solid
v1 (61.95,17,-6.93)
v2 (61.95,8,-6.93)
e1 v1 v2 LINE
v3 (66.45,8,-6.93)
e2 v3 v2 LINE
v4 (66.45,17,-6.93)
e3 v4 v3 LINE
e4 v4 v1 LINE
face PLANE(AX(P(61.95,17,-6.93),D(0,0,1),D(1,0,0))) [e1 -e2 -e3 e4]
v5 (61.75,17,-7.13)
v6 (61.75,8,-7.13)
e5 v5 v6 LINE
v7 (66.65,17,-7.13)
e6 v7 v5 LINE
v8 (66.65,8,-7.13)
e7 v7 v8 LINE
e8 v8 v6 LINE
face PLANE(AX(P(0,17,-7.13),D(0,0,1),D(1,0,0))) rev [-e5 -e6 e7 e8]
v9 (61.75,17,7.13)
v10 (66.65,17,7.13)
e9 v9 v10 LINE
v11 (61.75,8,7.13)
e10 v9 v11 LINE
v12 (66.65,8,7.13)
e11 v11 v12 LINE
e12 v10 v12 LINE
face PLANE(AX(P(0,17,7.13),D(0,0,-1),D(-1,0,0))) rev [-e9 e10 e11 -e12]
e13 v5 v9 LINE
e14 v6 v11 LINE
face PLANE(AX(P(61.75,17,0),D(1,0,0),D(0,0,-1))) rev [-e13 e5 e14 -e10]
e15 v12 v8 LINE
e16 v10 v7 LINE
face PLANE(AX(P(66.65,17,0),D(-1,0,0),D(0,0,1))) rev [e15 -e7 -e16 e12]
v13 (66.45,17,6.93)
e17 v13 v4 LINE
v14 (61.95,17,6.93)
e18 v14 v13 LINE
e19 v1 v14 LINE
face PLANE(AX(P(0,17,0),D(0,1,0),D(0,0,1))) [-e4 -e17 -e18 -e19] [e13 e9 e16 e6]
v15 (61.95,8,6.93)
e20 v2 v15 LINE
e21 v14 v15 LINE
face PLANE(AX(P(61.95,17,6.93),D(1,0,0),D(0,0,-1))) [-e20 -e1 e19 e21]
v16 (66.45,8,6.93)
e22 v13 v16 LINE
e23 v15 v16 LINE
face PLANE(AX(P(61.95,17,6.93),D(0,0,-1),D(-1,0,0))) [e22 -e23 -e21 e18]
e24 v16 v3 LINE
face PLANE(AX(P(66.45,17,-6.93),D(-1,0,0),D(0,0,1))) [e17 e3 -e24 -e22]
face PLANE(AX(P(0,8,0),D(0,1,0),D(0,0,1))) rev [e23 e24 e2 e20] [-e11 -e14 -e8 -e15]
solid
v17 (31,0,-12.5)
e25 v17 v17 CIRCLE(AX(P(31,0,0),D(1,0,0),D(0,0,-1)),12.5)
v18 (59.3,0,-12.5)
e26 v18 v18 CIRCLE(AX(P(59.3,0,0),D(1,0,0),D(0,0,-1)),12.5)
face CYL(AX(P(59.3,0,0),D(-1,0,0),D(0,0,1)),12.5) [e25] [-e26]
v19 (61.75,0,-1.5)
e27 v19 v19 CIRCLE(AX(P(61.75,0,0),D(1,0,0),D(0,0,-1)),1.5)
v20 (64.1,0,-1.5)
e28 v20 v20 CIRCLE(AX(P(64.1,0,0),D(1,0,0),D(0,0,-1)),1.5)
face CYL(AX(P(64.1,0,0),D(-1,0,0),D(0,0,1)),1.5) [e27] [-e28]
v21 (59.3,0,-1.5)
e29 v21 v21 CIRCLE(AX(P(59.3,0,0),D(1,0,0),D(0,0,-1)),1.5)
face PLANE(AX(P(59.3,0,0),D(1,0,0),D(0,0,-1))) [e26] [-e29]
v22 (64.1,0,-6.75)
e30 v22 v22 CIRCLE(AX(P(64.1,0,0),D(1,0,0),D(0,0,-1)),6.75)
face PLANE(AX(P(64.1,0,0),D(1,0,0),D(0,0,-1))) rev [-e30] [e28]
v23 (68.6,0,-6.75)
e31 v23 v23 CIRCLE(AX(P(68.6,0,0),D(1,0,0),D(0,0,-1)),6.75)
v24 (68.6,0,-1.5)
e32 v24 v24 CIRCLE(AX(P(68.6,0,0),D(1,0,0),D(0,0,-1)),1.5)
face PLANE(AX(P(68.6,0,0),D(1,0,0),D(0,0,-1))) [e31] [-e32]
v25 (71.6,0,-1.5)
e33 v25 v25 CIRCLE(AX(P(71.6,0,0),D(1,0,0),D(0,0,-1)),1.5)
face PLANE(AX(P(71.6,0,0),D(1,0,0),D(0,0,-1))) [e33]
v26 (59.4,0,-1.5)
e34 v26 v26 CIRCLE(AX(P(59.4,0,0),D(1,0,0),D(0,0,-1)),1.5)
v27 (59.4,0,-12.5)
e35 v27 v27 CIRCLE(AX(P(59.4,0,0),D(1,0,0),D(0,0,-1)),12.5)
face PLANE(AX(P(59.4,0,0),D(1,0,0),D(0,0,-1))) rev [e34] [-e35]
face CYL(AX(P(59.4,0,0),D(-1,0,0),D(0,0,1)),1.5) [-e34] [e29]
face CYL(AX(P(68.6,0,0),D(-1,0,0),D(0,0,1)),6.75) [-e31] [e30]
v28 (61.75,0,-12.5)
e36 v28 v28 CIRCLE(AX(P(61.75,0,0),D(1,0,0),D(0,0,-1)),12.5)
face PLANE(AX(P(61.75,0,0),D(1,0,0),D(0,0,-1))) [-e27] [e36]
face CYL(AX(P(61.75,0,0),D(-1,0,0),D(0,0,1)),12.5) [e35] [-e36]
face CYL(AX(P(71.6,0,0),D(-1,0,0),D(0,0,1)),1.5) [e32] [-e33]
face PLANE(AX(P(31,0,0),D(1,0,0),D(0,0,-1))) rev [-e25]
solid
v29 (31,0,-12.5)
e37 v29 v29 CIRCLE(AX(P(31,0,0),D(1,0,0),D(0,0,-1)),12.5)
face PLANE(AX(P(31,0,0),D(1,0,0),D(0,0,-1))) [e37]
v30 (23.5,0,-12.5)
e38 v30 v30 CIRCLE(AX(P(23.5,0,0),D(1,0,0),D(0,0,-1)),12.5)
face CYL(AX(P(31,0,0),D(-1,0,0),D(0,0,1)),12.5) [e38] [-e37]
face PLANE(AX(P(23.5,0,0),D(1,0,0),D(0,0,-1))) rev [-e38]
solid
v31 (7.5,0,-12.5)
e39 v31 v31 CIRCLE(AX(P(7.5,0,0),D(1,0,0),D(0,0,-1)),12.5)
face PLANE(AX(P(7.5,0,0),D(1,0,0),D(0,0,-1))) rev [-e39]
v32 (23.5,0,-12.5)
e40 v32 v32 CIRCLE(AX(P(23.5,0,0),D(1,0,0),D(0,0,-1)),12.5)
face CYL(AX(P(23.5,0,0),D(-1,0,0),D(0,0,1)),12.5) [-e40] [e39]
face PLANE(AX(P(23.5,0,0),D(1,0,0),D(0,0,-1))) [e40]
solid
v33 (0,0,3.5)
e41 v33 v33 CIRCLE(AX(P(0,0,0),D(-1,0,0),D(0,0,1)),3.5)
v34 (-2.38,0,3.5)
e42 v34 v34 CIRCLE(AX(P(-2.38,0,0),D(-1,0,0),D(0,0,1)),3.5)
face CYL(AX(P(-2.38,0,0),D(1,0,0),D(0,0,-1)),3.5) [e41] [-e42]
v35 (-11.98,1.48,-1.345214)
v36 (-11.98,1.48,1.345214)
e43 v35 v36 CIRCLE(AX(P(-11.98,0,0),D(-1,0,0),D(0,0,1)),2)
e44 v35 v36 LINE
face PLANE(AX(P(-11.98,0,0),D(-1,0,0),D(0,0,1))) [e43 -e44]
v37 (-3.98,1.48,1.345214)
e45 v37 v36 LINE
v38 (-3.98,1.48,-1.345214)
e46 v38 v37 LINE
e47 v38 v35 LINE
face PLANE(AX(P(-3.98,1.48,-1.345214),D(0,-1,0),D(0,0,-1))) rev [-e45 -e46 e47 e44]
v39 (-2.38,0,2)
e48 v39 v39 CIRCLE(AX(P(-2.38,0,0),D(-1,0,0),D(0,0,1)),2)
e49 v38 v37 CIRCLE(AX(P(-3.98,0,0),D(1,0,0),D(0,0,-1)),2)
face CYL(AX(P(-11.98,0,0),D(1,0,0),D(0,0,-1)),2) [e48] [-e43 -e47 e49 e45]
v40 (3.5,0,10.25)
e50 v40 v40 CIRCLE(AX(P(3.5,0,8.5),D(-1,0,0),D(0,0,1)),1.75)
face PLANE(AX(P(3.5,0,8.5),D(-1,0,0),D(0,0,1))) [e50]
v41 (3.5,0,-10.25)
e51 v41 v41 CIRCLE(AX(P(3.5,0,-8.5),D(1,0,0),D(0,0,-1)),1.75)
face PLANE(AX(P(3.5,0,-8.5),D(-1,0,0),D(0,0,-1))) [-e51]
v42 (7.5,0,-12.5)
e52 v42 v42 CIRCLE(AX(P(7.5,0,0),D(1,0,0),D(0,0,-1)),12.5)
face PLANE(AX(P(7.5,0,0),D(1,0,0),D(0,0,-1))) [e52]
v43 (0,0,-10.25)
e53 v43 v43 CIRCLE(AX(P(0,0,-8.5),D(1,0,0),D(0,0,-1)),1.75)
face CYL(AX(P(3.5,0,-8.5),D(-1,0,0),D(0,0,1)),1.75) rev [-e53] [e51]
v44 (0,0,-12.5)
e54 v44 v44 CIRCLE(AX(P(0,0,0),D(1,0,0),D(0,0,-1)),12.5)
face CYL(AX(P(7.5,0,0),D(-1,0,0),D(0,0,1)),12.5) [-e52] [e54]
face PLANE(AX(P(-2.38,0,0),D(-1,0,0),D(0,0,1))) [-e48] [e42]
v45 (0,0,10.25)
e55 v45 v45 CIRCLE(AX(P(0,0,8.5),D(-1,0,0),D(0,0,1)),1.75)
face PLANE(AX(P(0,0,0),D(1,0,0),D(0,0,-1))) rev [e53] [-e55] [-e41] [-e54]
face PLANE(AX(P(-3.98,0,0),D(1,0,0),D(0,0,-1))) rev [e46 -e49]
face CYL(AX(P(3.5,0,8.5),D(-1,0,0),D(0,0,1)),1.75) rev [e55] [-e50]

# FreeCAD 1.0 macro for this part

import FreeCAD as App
import Part
import Sketcher
from FreeCAD import Vector


def add_polygon(sketch, points):
    """Adds a closed chain of lines whose ends are joined by coincident constraints."""
    first, n = sketch.GeometryCount, len(points)
    for a, b in zip(points, points[1:] + points[:1]):
        sketch.addGeometry(Part.LineSegment(App.Vector(*a, 0), App.Vector(*b, 0)), False)
    for i in range(n):
        sketch.addConstraint(Sketcher.Constraint("Coincident", first + i, 2, first + (i + 1) % n, 1))

doc = App.newDocument("Part")
body = doc.addObject("PartDesign::Body", "Body")

# Sketch on YZ plane
sketch1 = body.newObject("Sketcher::SketchObject", "Sketch")
sketch1.AttachmentSupport = (doc.getObject("YZ_Plane"), [""])
sketch1.MapMode = "FlatFace"
sketch1.addGeometry(Part.Circle(Vector(0, 0, 0), Vector(0, 0, 1), 12), False)
sketch1.addConstraint([
    Sketcher.Constraint("Coincident", 0, 3, -1, 1),
    Sketcher.Constraint("Diameter", 0, 25.0),
])
pad1 = body.newObject("PartDesign::Pad", "Pad")
pad1.Profile = sketch1
pad1.Length = 7.5

# Sketch on YZ plane
sketch2 = body.newObject("Sketcher::SketchObject", "Sketch001")
sketch2.AttachmentSupport = (doc.getObject("YZ_Plane"), [""])
sketch2.MapMode = "FlatFace"
sketch2.addGeometry(Part.Circle(Vector(0, 0, 0), Vector(0, 0, 1), 3.5), False)
sketch2.addConstraint([
    Sketcher.Constraint("Coincident", 0, 3, -1, 1),
    Sketcher.Constraint("Diameter", 0, 7.0),
])
pad2 = body.newObject("PartDesign::Pad", "Pad001")
pad2.Profile = sketch2
pad2.Length = 2.38
pad2.Reversed = True

# Sketch on YZ plane
sketch3 = body.newObject("Sketcher::SketchObject", "Sketch002")
sketch3.AttachmentSupport = (doc.getObject("YZ_Plane"), [""])
sketch3.MapMode = "FlatFace"
sketch3.AttachmentOffset = App.Placement(Vector(0, 0, -2.38), App.Rotation())
sketch3.addGeometry(Part.Circle(Vector(0, 0, 0), Vector(0, 0, 1), 2), False)
sketch3.addConstraint([
    Sketcher.Constraint("Coincident", 0, 3, -1, 1),
    Sketcher.Constraint("Diameter", 0, 4.0),
])
pad3 = body.newObject("PartDesign::Pad", "Pad002")
pad3.Profile = sketch3
pad3.Length = 9.6
pad3.Reversed = True

# Sketch on YZ plane
sketch4 = body.newObject("Sketcher::SketchObject", "Sketch003")
sketch4.AttachmentSupport = (doc.getObject("YZ_Plane"), [""])
sketch4.MapMode = "FlatFace"
sketch4.AttachmentOffset = App.Placement(Vector(0, 0, -11.98), App.Rotation())
add_polygon(sketch4, [(2.2, -1.3), (1.5, -1.3), (1.5, 1.3), (2.2, 1.3)])  # lines 0-3
sketch4.addConstraint([
    Sketcher.Constraint("Horizontal", 0),
    Sketcher.Constraint("Vertical", 1),
    Sketcher.Constraint("Horizontal", 2),
    Sketcher.Constraint("Vertical", 3),
    Sketcher.Constraint("DistanceX", -1, 1, 0, 2, 1.48),
    Sketcher.Constraint("DistanceX", 0, 2, 0, 1, 0.755116),
    Sketcher.Constraint("DistanceY", 1, 1, 1, 2, 2.690427),
    Sketcher.Constraint("DistanceY", 0, 2, -1, 1, 1.345214),
])
pocket1 = body.newObject("PartDesign::Pocket", "Pocket")
pocket1.Profile = sketch4
pocket1.Length = 8
pocket1.Reversed = True

# Sketch on YZ plane
sketch5 = body.newObject("Sketcher::SketchObject", "Sketch004")
sketch5.AttachmentSupport = (doc.getObject("YZ_Plane"), [""])
sketch5.MapMode = "FlatFace"
sketch5.addGeometry(Part.Circle(Vector(0, 8.5, 0), Vector(0, 0, 1), 1.8), False)
sketch5.addConstraint([
    Sketcher.Constraint("PointOnObject", 0, 3, -2),
    Sketcher.Constraint("Diameter", 0, 3.5),
    Sketcher.Constraint("DistanceY", -1, 1, 0, 3, 8.5),
])
pocket2 = body.newObject("PartDesign::Pocket", "Pocket001")
pocket2.Profile = sketch5
pocket2.Length = 3.5
pocket2.Reversed = True
doc.recompute()

mirrored = body.newObject("PartDesign::Mirrored", "Mirrored")
mirrored.Originals = [pocket2]
mirrored.MirrorPlane = (doc.getObject("XY_Plane"), [""])
body.Tip = mirrored
body2 = doc.addObject("PartDesign::Body", "Body001")

# Sketch on YZ plane
sketch6 = body2.newObject("Sketcher::SketchObject", "Sketch005")
sketch6.AttachmentSupport = (doc.getObject("YZ_Plane001"), [""])
sketch6.MapMode = "FlatFace"
sketch6.AttachmentOffset = App.Placement(Vector(0, 0, 7.5), App.Rotation())
sketch6.addGeometry(Part.Circle(Vector(0, 0, 0), Vector(0, 0, 1), 12), False)
sketch6.addConstraint([
    Sketcher.Constraint("Coincident", 0, 3, -1, 1),
    Sketcher.Constraint("Diameter", 0, 25.0),
])
pad4 = body2.newObject("PartDesign::Pad", "Pad003")
pad4.Profile = sketch6
pad4.Length = 16
body3 = doc.addObject("PartDesign::Body", "Body002")

# Sketch on YZ plane
sketch7 = body3.newObject("Sketcher::SketchObject", "Sketch006")
sketch7.AttachmentSupport = (doc.getObject("YZ_Plane002"), [""])
sketch7.MapMode = "FlatFace"
sketch7.AttachmentOffset = App.Placement(Vector(0, 0, 23.5), App.Rotation())
sketch7.addGeometry(Part.Circle(Vector(0, 0, 0), Vector(0, 0, 1), 12), False)
sketch7.addConstraint([
    Sketcher.Constraint("Coincident", 0, 3, -1, 1),
    Sketcher.Constraint("Diameter", 0, 25.0),
])
pad5 = body3.newObject("PartDesign::Pad", "Pad004")
pad5.Profile = sketch7
pad5.Length = 7.5
body4 = doc.addObject("PartDesign::Body", "Body003")

# Sketch on YZ plane
sketch8 = body4.newObject("Sketcher::SketchObject", "Sketch007")
sketch8.AttachmentSupport = (doc.getObject("YZ_Plane003"), [""])
sketch8.MapMode = "FlatFace"
sketch8.AttachmentOffset = App.Placement(Vector(0, 0, 31), App.Rotation())
sketch8.addGeometry(Part.Circle(Vector(0, 0, 0), Vector(0, 0, 1), 12), False)
sketch8.addConstraint([
    Sketcher.Constraint("Coincident", 0, 3, -1, 1),
    Sketcher.Constraint("Diameter", 0, 25.0),
])
pad6 = body4.newObject("PartDesign::Pad", "Pad005")
pad6.Profile = sketch8
pad6.Length = 28.3

# Sketch on YZ plane
sketch9 = body4.newObject("Sketcher::SketchObject", "Sketch008")
sketch9.AttachmentSupport = (doc.getObject("YZ_Plane003"), [""])
sketch9.MapMode = "FlatFace"
sketch9.AttachmentOffset = App.Placement(Vector(0, 0, 59.3), App.Rotation())
sketch9.addGeometry(Part.Circle(Vector(0, 0, 0), Vector(0, 0, 1), 1.5), False)
sketch9.addConstraint([
    Sketcher.Constraint("Coincident", 0, 3, -1, 1),
    Sketcher.Constraint("Diameter", 0, 3.0),
])
pad7 = body4.newObject("PartDesign::Pad", "Pad006")
pad7.Profile = sketch9
pad7.Length = 0.1

# Sketch on YZ plane
sketch10 = body4.newObject("Sketcher::SketchObject", "Sketch009")
sketch10.AttachmentSupport = (doc.getObject("YZ_Plane003"), [""])
sketch10.MapMode = "FlatFace"
sketch10.AttachmentOffset = App.Placement(Vector(0, 0, 59.4), App.Rotation())
sketch10.addGeometry(Part.Circle(Vector(0, 0, 0), Vector(0, 0, 1), 12), False)
sketch10.addConstraint([
    Sketcher.Constraint("Coincident", 0, 3, -1, 1),
    Sketcher.Constraint("Diameter", 0, 25.0),
])
pad8 = body4.newObject("PartDesign::Pad", "Pad007")
pad8.Profile = sketch10
pad8.Length = 2.35

# Sketch on YZ plane
sketch11 = body4.newObject("Sketcher::SketchObject", "Sketch010")
sketch11.AttachmentSupport = (doc.getObject("YZ_Plane003"), [""])
sketch11.MapMode = "FlatFace"
sketch11.AttachmentOffset = App.Placement(Vector(0, 0, 61.75), App.Rotation())
sketch11.addGeometry(Part.Circle(Vector(0, 0, 0), Vector(0, 0, 1), 1.5), False)
sketch11.addConstraint([
    Sketcher.Constraint("Coincident", 0, 3, -1, 1),
    Sketcher.Constraint("Diameter", 0, 3.0),
])
pad9 = body4.newObject("PartDesign::Pad", "Pad008")
pad9.Profile = sketch11
pad9.Length = 2.35

# Sketch on YZ plane
sketch12 = body4.newObject("Sketcher::SketchObject", "Sketch011")
sketch12.AttachmentSupport = (doc.getObject("YZ_Plane003"), [""])
sketch12.MapMode = "FlatFace"
sketch12.AttachmentOffset = App.Placement(Vector(0, 0, 64.1), App.Rotation())
sketch12.addGeometry(Part.Circle(Vector(0, 0, 0), Vector(0, 0, 1), 7), False)
sketch12.addConstraint([
    Sketcher.Constraint("Coincident", 0, 3, -1, 1),
    Sketcher.Constraint("Diameter", 0, 13.5),
])
pad10 = body4.newObject("PartDesign::Pad", "Pad009")
pad10.Profile = sketch12
pad10.Length = 4.5

# Sketch on YZ plane
sketch13 = body4.newObject("Sketcher::SketchObject", "Sketch012")
sketch13.AttachmentSupport = (doc.getObject("YZ_Plane003"), [""])
sketch13.MapMode = "FlatFace"
sketch13.AttachmentOffset = App.Placement(Vector(0, 0, 68.6), App.Rotation())
sketch13.addGeometry(Part.Circle(Vector(0, 0, 0), Vector(0, 0, 1), 1.5), False)
sketch13.addConstraint([
    Sketcher.Constraint("Coincident", 0, 3, -1, 1),
    Sketcher.Constraint("Diameter", 0, 3.0),
])
pad11 = body4.newObject("PartDesign::Pad", "Pad010")
pad11.Profile = sketch13
pad11.Length = 3
body5 = doc.addObject("PartDesign::Body", "Body004")

# Sketch on XZ plane
sketch14 = body5.newObject("Sketcher::SketchObject", "Sketch013")
sketch14.AttachmentSupport = (doc.getObject("XZ_Plane004"), [""])
sketch14.MapMode = "FlatFace"
sketch14.AttachmentOffset = App.Placement(Vector(0, 0, -8), App.Rotation())
add_polygon(sketch14, [(61.8, -7.1), (61.8, 7.1), (66.7, 7.1), (66.7, -7.1)])  # lines 0-3
add_polygon(sketch14, [(66.5, 6.9), (62, 6.9), (62, -6.9), (66.5, -6.9)])  # lines 4-7
sketch14.addConstraint([
    Sketcher.Constraint("Vertical", 0),
    Sketcher.Constraint("Horizontal", 1),
    Sketcher.Constraint("Vertical", 2),
    Sketcher.Constraint("Horizontal", 3),
    Sketcher.Constraint("Horizontal", 4),
    Sketcher.Constraint("Vertical", 5),
    Sketcher.Constraint("Horizontal", 6),
    Sketcher.Constraint("Vertical", 7),
    Sketcher.Constraint("DistanceX", 1, 1, 1, 2, 4.9),
    Sketcher.Constraint("DistanceX", 4, 2, 4, 1, 4.5),
    Sketcher.Constraint("DistanceY", 0, 1, 0, 2, 14.26),
    Sketcher.Constraint("DistanceY", 5, 2, 5, 1, 13.86),
    Sketcher.Constraint("DistanceX", 0, 2, 4, 2, 0.2),
    Sketcher.Constraint("DistanceY", 4, 2, 0, 2, 0.2),
    Sketcher.Constraint("DistanceX", -1, 1, 0, 2, 61.75),
    Sketcher.Constraint("DistanceY", -1, 1, 0, 2, 7.13),
])
pad12 = body5.newObject("PartDesign::Pad", "Pad011")
pad12.Profile = sketch14
pad12.Length = 9
pad12.Reversed = True

doc.recompute()
